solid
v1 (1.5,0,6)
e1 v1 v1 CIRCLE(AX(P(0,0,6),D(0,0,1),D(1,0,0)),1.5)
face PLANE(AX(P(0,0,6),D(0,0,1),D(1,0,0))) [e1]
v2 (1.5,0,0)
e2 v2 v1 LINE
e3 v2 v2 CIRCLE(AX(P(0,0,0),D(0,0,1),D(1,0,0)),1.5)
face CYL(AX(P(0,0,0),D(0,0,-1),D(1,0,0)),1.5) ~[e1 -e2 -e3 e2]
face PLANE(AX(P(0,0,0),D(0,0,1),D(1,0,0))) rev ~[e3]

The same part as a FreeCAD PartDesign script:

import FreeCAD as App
import Part
import Sketcher

doc = App.newDocument("Part")
body = doc.addObject("PartDesign::Body", "Body")

# Sketch on XY plane
sketch1 = body.newObject("Sketcher::SketchObject", "Sketch")
sketch1.AttachmentSupport = (doc.getObject("XY_Plane"), [""])
sketch1.MapMode = "FlatFace"
sketch1.addGeometry(Part.Circle(App.Vector(0, 0, 0), App.Vector(0, 0, 1), 1.5), False)
sketch1.addConstraint([
    Sketcher.Constraint("Coincident", 0, 3, -1, 1),
    Sketcher.Constraint("Diameter", 0, 3.0),
])
pad1 = body.newObject("PartDesign::Pad", "Pad")
pad1.Profile = sketch1
pad1.Length = 6

doc.recompute()
